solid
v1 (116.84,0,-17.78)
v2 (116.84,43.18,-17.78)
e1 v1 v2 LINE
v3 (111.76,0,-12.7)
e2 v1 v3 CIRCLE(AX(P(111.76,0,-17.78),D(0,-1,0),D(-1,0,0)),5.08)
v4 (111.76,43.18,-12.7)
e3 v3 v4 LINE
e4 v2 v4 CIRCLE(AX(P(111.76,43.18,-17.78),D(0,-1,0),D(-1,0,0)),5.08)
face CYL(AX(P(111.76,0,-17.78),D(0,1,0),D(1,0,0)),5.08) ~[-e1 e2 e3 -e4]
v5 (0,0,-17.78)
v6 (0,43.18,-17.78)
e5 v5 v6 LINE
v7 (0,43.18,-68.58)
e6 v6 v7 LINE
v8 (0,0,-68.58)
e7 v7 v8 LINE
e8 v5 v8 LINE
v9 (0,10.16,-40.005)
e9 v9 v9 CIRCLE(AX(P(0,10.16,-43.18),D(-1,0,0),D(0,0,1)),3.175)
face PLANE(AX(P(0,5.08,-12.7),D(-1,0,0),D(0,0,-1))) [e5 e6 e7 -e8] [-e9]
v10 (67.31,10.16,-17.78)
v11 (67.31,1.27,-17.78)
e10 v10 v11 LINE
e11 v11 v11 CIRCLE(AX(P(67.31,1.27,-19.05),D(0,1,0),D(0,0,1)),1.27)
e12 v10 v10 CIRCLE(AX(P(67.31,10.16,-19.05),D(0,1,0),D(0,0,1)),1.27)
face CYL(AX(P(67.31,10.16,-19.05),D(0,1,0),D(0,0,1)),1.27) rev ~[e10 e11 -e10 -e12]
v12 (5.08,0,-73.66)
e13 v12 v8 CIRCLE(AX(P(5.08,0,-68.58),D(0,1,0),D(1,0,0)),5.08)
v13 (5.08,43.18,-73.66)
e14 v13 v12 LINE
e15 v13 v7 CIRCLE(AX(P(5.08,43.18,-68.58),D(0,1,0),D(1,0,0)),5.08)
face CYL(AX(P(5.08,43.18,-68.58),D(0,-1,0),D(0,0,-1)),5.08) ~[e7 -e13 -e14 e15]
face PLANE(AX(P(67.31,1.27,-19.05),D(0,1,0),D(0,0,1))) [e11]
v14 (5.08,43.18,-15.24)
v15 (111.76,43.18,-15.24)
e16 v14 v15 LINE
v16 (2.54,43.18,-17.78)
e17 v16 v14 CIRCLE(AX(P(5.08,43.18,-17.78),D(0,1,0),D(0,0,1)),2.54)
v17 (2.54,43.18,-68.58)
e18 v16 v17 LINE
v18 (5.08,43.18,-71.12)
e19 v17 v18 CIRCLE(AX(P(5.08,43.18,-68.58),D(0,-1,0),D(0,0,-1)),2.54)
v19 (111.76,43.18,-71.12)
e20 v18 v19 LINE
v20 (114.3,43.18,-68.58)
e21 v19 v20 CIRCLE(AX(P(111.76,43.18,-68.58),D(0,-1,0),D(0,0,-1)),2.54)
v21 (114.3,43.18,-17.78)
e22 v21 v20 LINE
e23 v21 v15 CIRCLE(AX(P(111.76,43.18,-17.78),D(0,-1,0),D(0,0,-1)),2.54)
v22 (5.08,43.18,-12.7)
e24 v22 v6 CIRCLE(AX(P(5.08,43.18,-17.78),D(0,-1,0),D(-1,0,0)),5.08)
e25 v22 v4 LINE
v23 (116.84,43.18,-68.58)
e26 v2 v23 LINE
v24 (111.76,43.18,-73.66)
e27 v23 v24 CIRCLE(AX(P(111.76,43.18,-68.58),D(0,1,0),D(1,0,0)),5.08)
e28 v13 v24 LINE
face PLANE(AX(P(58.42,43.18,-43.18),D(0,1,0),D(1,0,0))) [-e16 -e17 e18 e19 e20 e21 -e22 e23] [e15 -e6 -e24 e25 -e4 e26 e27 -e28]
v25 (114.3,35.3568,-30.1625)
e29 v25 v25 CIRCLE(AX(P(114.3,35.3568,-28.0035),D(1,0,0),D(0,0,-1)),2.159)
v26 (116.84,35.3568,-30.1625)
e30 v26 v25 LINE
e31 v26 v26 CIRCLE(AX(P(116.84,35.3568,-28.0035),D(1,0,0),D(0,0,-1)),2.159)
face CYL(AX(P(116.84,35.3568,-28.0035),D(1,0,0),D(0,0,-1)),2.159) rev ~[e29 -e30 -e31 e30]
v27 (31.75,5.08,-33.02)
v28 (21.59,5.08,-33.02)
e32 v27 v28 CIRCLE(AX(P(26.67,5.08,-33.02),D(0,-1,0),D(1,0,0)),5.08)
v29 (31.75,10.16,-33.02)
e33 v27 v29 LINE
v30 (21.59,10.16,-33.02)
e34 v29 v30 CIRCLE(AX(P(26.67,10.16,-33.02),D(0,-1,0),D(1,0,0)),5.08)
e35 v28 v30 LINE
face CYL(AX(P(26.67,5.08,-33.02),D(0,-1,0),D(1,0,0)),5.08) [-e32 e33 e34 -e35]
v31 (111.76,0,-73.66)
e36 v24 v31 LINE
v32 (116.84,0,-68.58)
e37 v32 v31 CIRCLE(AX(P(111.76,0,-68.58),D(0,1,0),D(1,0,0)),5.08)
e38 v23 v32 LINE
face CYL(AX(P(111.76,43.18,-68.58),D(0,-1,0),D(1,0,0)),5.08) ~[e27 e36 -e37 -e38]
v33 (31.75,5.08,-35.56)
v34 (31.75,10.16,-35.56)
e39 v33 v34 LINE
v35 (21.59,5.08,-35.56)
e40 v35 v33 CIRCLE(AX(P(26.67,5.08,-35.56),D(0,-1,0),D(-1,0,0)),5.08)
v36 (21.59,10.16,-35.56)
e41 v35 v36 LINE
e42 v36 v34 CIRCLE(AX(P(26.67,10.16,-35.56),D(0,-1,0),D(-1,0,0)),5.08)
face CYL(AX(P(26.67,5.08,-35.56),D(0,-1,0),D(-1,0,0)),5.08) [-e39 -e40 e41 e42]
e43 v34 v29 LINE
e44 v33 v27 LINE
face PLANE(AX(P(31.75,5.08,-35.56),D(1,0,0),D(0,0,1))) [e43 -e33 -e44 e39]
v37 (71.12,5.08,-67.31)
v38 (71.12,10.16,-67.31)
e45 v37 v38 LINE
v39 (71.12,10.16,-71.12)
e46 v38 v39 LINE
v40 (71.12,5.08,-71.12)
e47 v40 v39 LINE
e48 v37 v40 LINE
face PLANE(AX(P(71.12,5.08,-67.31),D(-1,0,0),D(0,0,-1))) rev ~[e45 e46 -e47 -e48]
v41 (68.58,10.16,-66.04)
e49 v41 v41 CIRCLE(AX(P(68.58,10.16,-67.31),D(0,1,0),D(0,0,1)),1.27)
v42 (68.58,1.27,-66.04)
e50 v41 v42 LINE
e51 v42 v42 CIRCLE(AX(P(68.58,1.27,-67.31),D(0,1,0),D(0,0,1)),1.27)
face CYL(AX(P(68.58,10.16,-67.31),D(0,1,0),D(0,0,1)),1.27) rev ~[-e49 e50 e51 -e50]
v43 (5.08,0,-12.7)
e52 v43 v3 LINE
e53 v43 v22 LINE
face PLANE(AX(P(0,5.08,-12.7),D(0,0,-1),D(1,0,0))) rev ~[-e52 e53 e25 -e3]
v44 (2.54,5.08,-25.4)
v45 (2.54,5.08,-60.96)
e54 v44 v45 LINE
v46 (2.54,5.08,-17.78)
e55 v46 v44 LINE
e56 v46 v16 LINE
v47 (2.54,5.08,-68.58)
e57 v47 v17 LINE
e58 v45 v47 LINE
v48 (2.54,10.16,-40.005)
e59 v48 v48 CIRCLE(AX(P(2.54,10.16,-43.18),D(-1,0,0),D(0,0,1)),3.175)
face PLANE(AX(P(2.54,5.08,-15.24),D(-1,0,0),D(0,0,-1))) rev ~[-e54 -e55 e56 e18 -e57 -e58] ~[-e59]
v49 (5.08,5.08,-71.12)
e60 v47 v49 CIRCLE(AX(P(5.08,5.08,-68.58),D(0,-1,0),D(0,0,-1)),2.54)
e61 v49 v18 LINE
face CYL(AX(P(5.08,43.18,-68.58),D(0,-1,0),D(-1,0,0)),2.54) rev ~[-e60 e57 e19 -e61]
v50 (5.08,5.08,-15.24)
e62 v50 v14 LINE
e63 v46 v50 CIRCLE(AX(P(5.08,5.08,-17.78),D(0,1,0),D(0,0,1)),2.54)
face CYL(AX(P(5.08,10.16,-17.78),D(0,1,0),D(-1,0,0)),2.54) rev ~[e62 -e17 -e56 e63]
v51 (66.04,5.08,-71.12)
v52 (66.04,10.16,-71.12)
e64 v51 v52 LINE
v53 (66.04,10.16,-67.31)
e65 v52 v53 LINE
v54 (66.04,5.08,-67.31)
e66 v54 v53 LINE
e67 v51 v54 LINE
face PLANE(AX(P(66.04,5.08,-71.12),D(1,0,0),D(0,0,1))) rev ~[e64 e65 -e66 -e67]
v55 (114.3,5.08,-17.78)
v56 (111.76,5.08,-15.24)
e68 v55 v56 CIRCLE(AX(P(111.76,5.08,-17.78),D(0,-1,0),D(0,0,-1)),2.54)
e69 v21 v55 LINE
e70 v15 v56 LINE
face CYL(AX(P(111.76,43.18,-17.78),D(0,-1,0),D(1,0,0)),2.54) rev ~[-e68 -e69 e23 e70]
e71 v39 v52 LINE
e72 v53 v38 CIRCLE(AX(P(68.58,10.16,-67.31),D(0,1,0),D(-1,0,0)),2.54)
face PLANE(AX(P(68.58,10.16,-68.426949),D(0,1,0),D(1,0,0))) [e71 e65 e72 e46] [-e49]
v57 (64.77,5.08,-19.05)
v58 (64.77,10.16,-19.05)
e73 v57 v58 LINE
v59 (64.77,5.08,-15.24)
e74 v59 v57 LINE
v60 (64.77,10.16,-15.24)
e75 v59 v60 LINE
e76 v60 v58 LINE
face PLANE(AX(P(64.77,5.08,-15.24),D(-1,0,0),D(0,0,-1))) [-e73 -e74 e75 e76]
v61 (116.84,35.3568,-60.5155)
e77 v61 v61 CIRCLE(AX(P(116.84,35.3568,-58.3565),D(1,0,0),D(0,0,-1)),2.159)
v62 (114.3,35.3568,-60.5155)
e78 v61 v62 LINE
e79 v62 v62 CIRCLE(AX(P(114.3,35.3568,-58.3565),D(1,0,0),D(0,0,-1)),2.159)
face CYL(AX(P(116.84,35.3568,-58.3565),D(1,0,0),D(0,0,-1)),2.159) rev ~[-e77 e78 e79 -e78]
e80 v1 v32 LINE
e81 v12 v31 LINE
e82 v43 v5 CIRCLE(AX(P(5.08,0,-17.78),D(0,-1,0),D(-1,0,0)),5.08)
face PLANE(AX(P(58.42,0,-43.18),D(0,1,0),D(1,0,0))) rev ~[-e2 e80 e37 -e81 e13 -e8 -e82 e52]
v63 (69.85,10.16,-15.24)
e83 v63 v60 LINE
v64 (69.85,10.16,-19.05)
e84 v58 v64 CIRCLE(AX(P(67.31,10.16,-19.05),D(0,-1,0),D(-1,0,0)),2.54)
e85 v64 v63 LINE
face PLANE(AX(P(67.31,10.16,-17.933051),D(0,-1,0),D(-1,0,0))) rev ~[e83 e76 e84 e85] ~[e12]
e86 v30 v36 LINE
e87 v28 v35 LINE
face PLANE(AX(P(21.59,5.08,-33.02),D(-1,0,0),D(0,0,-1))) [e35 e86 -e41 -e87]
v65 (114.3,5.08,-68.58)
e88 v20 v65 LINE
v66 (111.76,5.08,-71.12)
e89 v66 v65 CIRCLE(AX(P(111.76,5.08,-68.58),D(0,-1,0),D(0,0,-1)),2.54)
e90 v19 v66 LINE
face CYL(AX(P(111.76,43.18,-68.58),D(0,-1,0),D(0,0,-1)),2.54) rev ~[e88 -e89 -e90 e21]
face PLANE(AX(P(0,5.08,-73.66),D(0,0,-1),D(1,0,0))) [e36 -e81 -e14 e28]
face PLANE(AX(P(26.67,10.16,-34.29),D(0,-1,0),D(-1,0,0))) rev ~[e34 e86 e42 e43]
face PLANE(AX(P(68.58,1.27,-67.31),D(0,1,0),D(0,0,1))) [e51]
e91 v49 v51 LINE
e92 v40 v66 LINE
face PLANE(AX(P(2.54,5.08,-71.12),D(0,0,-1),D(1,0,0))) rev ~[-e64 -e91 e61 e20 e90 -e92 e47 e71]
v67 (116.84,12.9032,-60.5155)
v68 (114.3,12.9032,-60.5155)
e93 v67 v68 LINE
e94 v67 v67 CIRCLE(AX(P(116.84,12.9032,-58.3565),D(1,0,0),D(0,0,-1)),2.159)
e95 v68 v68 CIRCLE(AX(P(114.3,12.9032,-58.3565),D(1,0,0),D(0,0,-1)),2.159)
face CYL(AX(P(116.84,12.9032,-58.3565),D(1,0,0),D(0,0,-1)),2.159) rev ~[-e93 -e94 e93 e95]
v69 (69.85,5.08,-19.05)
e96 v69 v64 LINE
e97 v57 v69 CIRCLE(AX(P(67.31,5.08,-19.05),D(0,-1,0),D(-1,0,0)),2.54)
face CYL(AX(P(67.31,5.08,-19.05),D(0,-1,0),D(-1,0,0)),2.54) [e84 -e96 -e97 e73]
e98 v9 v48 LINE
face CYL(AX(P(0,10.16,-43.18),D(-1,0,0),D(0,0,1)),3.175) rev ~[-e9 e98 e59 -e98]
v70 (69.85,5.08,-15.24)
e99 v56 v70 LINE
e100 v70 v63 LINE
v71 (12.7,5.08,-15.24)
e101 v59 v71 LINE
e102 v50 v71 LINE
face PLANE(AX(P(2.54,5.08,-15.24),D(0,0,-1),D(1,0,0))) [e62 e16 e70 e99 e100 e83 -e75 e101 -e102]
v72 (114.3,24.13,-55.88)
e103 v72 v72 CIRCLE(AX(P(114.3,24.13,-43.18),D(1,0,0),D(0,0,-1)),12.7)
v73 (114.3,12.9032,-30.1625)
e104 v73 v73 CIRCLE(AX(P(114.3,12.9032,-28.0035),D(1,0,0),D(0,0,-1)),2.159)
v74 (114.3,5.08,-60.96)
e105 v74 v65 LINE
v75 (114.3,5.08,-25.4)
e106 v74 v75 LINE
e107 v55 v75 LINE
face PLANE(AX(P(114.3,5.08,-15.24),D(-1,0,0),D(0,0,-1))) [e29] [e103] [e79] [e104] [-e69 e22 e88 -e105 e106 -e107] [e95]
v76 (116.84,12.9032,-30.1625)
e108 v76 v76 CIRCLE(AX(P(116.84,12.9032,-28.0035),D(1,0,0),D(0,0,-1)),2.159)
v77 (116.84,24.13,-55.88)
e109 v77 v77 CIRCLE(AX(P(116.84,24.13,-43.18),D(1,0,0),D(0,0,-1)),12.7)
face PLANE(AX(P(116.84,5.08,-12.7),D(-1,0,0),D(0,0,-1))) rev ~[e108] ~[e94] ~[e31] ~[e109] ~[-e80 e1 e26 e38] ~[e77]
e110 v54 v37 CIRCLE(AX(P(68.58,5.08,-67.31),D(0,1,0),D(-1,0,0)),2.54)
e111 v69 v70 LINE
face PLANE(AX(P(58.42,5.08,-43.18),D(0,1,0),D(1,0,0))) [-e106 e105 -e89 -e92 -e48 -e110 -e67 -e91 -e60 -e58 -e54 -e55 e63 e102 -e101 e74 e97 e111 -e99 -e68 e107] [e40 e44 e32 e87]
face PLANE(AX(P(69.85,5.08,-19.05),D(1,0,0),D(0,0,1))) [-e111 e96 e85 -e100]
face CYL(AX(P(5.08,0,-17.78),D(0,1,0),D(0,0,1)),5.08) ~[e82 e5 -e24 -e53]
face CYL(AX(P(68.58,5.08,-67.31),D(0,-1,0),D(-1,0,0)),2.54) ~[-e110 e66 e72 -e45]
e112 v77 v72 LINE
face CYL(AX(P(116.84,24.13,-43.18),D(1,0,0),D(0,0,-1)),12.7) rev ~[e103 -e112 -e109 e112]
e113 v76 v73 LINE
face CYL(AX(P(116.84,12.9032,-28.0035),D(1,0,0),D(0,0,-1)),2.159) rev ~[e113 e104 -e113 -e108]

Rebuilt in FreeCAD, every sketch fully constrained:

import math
import FreeCAD as App
import Part
import Sketcher
Q = App.Units.Quantity


def edges_at(feature, points):
    """Names of the edges that pass closest to the given points."""
    edges = feature.Shape.Edges
    near = lambda p: min(range(len(edges)), key=lambda i: edges[i].distToShape(Part.Vertex(*p))[0])
    return sorted({f"Edge{near(p) + 1}" for p in points})


def add_polygon(sketch, points):
    """Adds a closed chain of lines whose ends are joined by coincident constraints."""
    first, n = sketch.GeometryCount, len(points)
    for a, b in zip(points, points[1:] + points[:1]):
        sketch.addGeometry(Part.LineSegment(App.Vector(*a, 0), App.Vector(*b, 0)), False)
    for i in range(n):
        sketch.addConstraint(Sketcher.Constraint("Coincident", first + i, 2, first + (i + 1) % n, 1))

doc = App.newDocument("Part")
body = doc.addObject("PartDesign::Body", "Body")

# Sketch on XZ plane
sketch1 = doc.addObject("Sketcher::SketchObject", "Sketch")
body.addObject(sketch1)
sketch1.AttachmentSupport = (doc.XZ_Plane, [""])
sketch1.MapMode = "FlatFace"
add_polygon(sketch1, [(0, -86), (0, 0), (117, 0), (117, -86)])  # lines 0-3
sketch1.addConstraint([
    Sketcher.Constraint("Vertical", 0),
    Sketcher.Constraint("Horizontal", 1),
    Sketcher.Constraint("Vertical", 2),
    Sketcher.Constraint("Horizontal", 3),
    Sketcher.Constraint("Coincident", 0, 2, -1, 1),
    Sketcher.Constraint("DistanceX", 1, 1, 1, 2, Q("4.6 in")),
    Sketcher.Constraint("DistanceY", 0, 1, 0, 2, Q("3.4 in")),
])
pad1 = doc.addObject("PartDesign::Pad", "Pad")
body.addObject(pad1)
pad1.Profile = sketch1
pad1.Length = Q("0.2 in")
pad1.Reversed = True
doc.recompute()

fillet = doc.addObject("PartDesign::Fillet", "Fillet")
body.addObject(fillet)
fillet.Base = (pad1, edges_at(pad1, [
    (0, 2.54, -86.36),
    (116.84, 2.54, -86.36),
    (116.84, 2.54, 0),
    (0, 2.54, 0),
]))
fillet.Radius = Q("0.5 in")

# Sketch on XZ plane
sketch2 = doc.addObject("Sketcher::SketchObject", "Sketch001")
body.addObject(sketch2)
sketch2.AttachmentSupport = (doc.XZ_Plane, [""])
sketch2.MapMode = "FlatFace"
sketch2.AttachmentOffset = App.Placement(App.Vector(0, 0, -0.2 * 25.4), App.Rotation())
add_polygon(sketch2, [(0, -74), (0, -13), (117, -13), (117, -74)])  # lines 0-3
add_polygon(sketch2, [(114, -15), (3, -15), (3, -71), (114, -71)])  # lines 4-7
sketch2.addConstraint([
    Sketcher.Constraint("Vertical", 0),
    Sketcher.Constraint("Horizontal", 1),
    Sketcher.Constraint("Vertical", 2),
    Sketcher.Constraint("Horizontal", 3),
    Sketcher.Constraint("Horizontal", 4),
    Sketcher.Constraint("Vertical", 5),
    Sketcher.Constraint("Horizontal", 6),
    Sketcher.Constraint("Vertical", 7),
    Sketcher.Constraint("PointOnObject", 0, 2, -2),
    Sketcher.Constraint("DistanceX", 1, 1, 1, 2, Q("4.6 in")),
    Sketcher.Constraint("DistanceX", 4, 2, 4, 1, Q("4.4 in")),
    Sketcher.Constraint("DistanceY", 0, 1, 0, 2, Q("2.4 in")),
    Sketcher.Constraint("DistanceY", 5, 2, 5, 1, Q("2.2 in")),
    Sketcher.Constraint("DistanceY", 0, 2, -1, 1, Q("0.5 in")),
    Sketcher.Constraint("DistanceX", -1, 1, 4, 2, Q("0.1 in")),
    Sketcher.Constraint("DistanceY", 4, 2, -1, 1, Q("0.6 in")),
])
pad2 = doc.addObject("PartDesign::Pad", "Pad001")
body.addObject(pad2)
pad2.Profile = sketch2
pad2.Length = Q("1.5 in")
pad2.Reversed = True

# Sketch on XZ plane
sketch3 = doc.addObject("Sketcher::SketchObject", "Sketch002")
body.addObject(sketch3)
sketch3.AttachmentSupport = (doc.XZ_Plane, [""])
sketch3.MapMode = "FlatFace"
sketch3.AttachmentOffset = App.Placement(App.Vector(0, 0, -0.2 * 25.4), App.Rotation())
add_polygon(sketch3, [(3, -71), (3, -61), (13, -61), (13, -71)])  # lines 0-3
add_polygon(sketch3, [(104, -71), (104, -61), (114, -61), (114, -71)])  # lines 4-7
add_polygon(sketch3, [(104, -25), (104, -15), (114, -15), (114, -25)])  # lines 8-11
add_polygon(sketch3, [(3, -25), (3, -15), (13, -15), (13, -25)])  # lines 12-15
sketch3.addConstraint([
    Sketcher.Constraint("Vertical", 0),
    Sketcher.Constraint("Horizontal", 1),
    Sketcher.Constraint("Vertical", 2),
    Sketcher.Constraint("Horizontal", 3),
    Sketcher.Constraint("Vertical", 4),
    Sketcher.Constraint("Horizontal", 5),
    Sketcher.Constraint("Vertical", 6),
    Sketcher.Constraint("Horizontal", 7),
    Sketcher.Constraint("Vertical", 8),
    Sketcher.Constraint("Horizontal", 9),
    Sketcher.Constraint("Vertical", 10),
    Sketcher.Constraint("Horizontal", 11),
    Sketcher.Constraint("Vertical", 12),
    Sketcher.Constraint("Horizontal", 13),
    Sketcher.Constraint("Vertical", 14),
    Sketcher.Constraint("Horizontal", 15),
    Sketcher.Constraint("Horizontal", 1, 2, 4, 2),
    Sketcher.Constraint("Horizontal", 3, 2, 6, 2),
    Sketcher.Constraint("Horizontal", 9, 2, 12, 2),
    Sketcher.Constraint("Horizontal", 11, 2, 14, 2),
    Sketcher.Constraint("Vertical", 7, 2, 8, 2),
    Sketcher.Constraint("Vertical", 6, 2, 9, 2),
    Sketcher.Constraint("Vertical", 3, 2, 12, 2),
    Sketcher.Constraint("Vertical", 2, 2, 13, 2),
    Sketcher.Constraint("Equal", 3, 5),
    Sketcher.Constraint("Equal", 15, 0),
    Sketcher.Constraint("Equal", 6, 8),
    Sketcher.Constraint("DistanceX", 1, 1, 1, 2, Q("0.4 in")),
    Sketcher.Constraint("DistanceY", 10, 2, -1, 1, Q("1 in")),
    Sketcher.Constraint("DistanceX", 0, 2, 4, 2, Q("4 in")),
    Sketcher.Constraint("DistanceX", -1, 1, 0, 2, Q("0.1 in")),
    Sketcher.Constraint("DistanceY", 0, 2, -1, 1, Q("2.4 in")),
])
pad3 = doc.addObject("PartDesign::Pad", "Pad002")
body.addObject(pad3)
pad3.Profile = sketch3
pad3.Length = Q("1.35 in")
pad3.Reversed = True
doc.recompute()

fillet2 = doc.addObject("PartDesign::Fillet", "Fillet001")
body.addObject(fillet2)
fillet2.Base = (pad3, edges_at(pad3, [
    (12.7, 22.225, -25.4),
    (12.7, 22.225, -60.96),
    (104.14, 22.225, -60.96),
    (104.14, 22.225, -25.4),
]))
fillet2.Radius = Q("0.2 in")

# Sketch on XZ plane
sketch4 = doc.addObject("Sketcher::SketchObject", "Sketch003")
body.addObject(sketch4)
sketch4.AttachmentSupport = (doc.XZ_Plane, [""])
sketch4.MapMode = "FlatFace"
sketch4.AttachmentOffset = App.Placement(App.Vector(0, 0, -1.55 * 25.4), App.Rotation())
sketch4.addGeometry([
    Part.Circle(App.Vector(7.6, -66, 0), App.Vector(0, 0, 1), 1.3),
    Part.Circle(App.Vector(109.2, -66, 0), App.Vector(0, 0, 1), 1.3),
    Part.Circle(App.Vector(109.2, -20.3, 0), App.Vector(0, 0, 1), 1.3),
    Part.Circle(App.Vector(7.6, -20.3, 0), App.Vector(0, 0, 1), 1.3),
], False)
sketch4.addConstraint([
    Sketcher.Constraint("Equal", 0, 1),
    Sketcher.Constraint("Equal", 1, 2),
    Sketcher.Constraint("Equal", 2, 3),
    Sketcher.Constraint("Horizontal", 0, 3, 1, 3),
    Sketcher.Constraint("Horizontal", 2, 3, 3, 3),
    Sketcher.Constraint("Vertical", 1, 3, 2, 3),
    Sketcher.Constraint("Vertical", 0, 3, 3, 3),
    Sketcher.Constraint("Diameter", 0, Q("0.1 in")),
    Sketcher.Constraint("DistanceX", 0, 3, 1, 3, Q("4 in")),
    Sketcher.Constraint("DistanceX", -1, 1, 0, 3, Q("0.3 in")),
    Sketcher.Constraint("DistanceY", 0, 3, -1, 1, Q("2.6 in")),
    Sketcher.Constraint("DistanceY", 2, 3, -1, 1, Q("0.8 in")),
])
pocket1 = doc.addObject("PartDesign::Pocket", "Pocket")
body.addObject(pocket1)
pocket1.Profile = sketch4
pocket1.Length = Q("1.35 in")
pocket1.Reversed = True

# Sketch on XZ plane
sketch5 = doc.addObject("Sketcher::SketchObject", "Sketch004")
body.addObject(sketch5)
sketch5.AttachmentSupport = (doc.XZ_Plane, [""])
sketch5.MapMode = "FlatFace"
add_polygon(sketch5, [(-32, -120), (-32, 30), (167, 30), (167, -120)])  # lines 0-3
add_polygon(sketch5, [(117, -13), (0, -13), (0, -74), (117, -74)])  # lines 4-7
sketch5.addConstraint([
    Sketcher.Constraint("Vertical", 0),
    Sketcher.Constraint("Horizontal", 1),
    Sketcher.Constraint("Vertical", 2),
    Sketcher.Constraint("Horizontal", 3),
    Sketcher.Constraint("Horizontal", 4),
    Sketcher.Constraint("Vertical", 5),
    Sketcher.Constraint("Horizontal", 6),
    Sketcher.Constraint("Vertical", 7),
    Sketcher.Constraint("PointOnObject", 4, 2, -2),
    Sketcher.Constraint("DistanceX", 4, 2, 4, 1, Q("4.6 in")),
    Sketcher.Constraint("DistanceY", 5, 2, 5, 1, Q("2.4 in")),
    Sketcher.Constraint("DistanceY", 4, 2, -1, 1, Q("0.5 in")),
    Sketcher.Constraint("DistanceX", 1, 1, 1, 2, 198.457474),
    Sketcher.Constraint("DistanceY", 0, 1, 0, 2, 149.814535),
    Sketcher.Constraint("DistanceX", -1, 1, 1, 2, 166.832319),
    Sketcher.Constraint("DistanceY", 2, 2, -1, 1, 119.526909),
])
pocket2 = doc.addObject("PartDesign::Pocket", "Pocket001")
body.addObject(pocket2)
pocket2.Profile = sketch5
pocket2.Length = Q("0.2 in")
doc.recompute()

fillet3 = doc.addObject("PartDesign::Fillet", "Fillet002")
body.addObject(fillet3)
fillet3.Base = (pocket2, edges_at(pocket2, [
    (0, 21.59, -12.7),
    (0, 21.59, -73.66),
    (116.84, 21.59, -12.7),
    (116.84, 21.59, -73.66),
]))
fillet3.Radius = Q("0.2 in")

# Sketch on YZ plane
sketch6 = doc.addObject("Sketcher::SketchObject", "Sketch005")
body.addObject(sketch6)
sketch6.AttachmentSupport = (doc.YZ_Plane, [""])
sketch6.MapMode = "FlatFace"
sketch6.AttachmentOffset = App.Placement(App.Vector(0, 0, 4.6 * 25.4), App.Rotation())
sketch6.addGeometry(Part.Circle(App.Vector(24, -43, 0), App.Vector(0, 0, 1), 13), False)
sketch6.addConstraint([
    Sketcher.Constraint("Diameter", 0, Q("1 in")),
    Sketcher.Constraint("DistanceY", 0, 3, -1, 1, Q("1.7 in")),
    Sketcher.Constraint("DistanceX", -1, 1, 0, 3, Q("0.95 in")),
])
pocket3 = doc.addObject("PartDesign::Pocket", "Pocket002")
body.addObject(pocket3)
pocket3.Profile = sketch6
pocket3.Type = "UpToFirst"

# Sketch on YZ plane
sketch7 = doc.addObject("Sketcher::SketchObject", "Sketch006")
body.addObject(sketch7)
sketch7.AttachmentSupport = (doc.YZ_Plane, [""])
sketch7.MapMode = "FlatFace"
sketch7.AttachmentOffset = App.Placement(App.Vector(0, 0, 4.6 * 25.4), App.Rotation())
sketch7.addGeometry(Part.Circle(App.Vector(35.4, -28, 0), App.Vector(0, 0, 1), 2.2), False)
sketch7.addConstraint([
    Sketcher.Constraint("Diameter", 0, Q("0.17 in")),
    Sketcher.Constraint("DistanceX", -1, 1, 0, 3, Q("1.392 in")),
    Sketcher.Constraint("DistanceY", 0, 3, -1, 1, Q("1.1025 in")),
])
pocket4 = doc.addObject("PartDesign::Pocket", "Pocket003")
body.addObject(pocket4)
pocket4.Profile = sketch7
pocket4.Type = "UpToFirst"

# Sketch on YZ plane
sketch8 = doc.addObject("Sketcher::SketchObject", "Sketch007")
body.addObject(sketch8)
sketch8.AttachmentSupport = (doc.YZ_Plane, [""])
sketch8.MapMode = "FlatFace"
sketch8.AttachmentOffset = App.Placement(App.Vector(0, 0, 4.6 * 25.4), App.Rotation())
sketch8.addGeometry(Part.Circle(App.Vector(35.4, -58.4, 0), App.Vector(0, 0, 1), 2.2), False)
sketch8.addConstraint([
    Sketcher.Constraint("Diameter", 0, Q("0.17 in")),
    Sketcher.Constraint("DistanceX", -1, 1, 0, 3, Q("1.392 in")),
    Sketcher.Constraint("DistanceY", 0, 3, -1, 1, Q("2.2975 in")),
])
pocket5 = doc.addObject("PartDesign::Pocket", "Pocket004")
body.addObject(pocket5)
pocket5.Profile = sketch8
pocket5.Type = "UpToFirst"

# Sketch on YZ plane
sketch9 = doc.addObject("Sketcher::SketchObject", "Sketch008")
body.addObject(sketch9)
sketch9.AttachmentSupport = (doc.YZ_Plane, [""])
sketch9.MapMode = "FlatFace"
sketch9.AttachmentOffset = App.Placement(App.Vector(0, 0, 4.6 * 25.4), App.Rotation())
sketch9.addGeometry(Part.Circle(App.Vector(12.9, -28, 0), App.Vector(0, 0, 1), 2.2), False)
sketch9.addConstraint([
    Sketcher.Constraint("Diameter", 0, Q("0.17 in")),
    Sketcher.Constraint("DistanceX", -1, 1, 0, 3, Q("0.508 in")),
    Sketcher.Constraint("DistanceY", 0, 3, -1, 1, Q("1.1025 in")),
])
pocket6 = doc.addObject("PartDesign::Pocket", "Pocket005")
body.addObject(pocket6)
pocket6.Profile = sketch9
pocket6.Type = "UpToFirst"

# Sketch on YZ plane
sketch10 = doc.addObject("Sketcher::SketchObject", "Sketch009")
body.addObject(sketch10)
sketch10.AttachmentSupport = (doc.YZ_Plane, [""])
sketch10.MapMode = "FlatFace"
sketch10.AttachmentOffset = App.Placement(App.Vector(0, 0, 4.6 * 25.4), App.Rotation())
sketch10.addGeometry(Part.Circle(App.Vector(12.9, -58.4, 0), App.Vector(0, 0, 1), 2.2), False)
sketch10.addConstraint([
    Sketcher.Constraint("Diameter", 0, Q("0.17 in")),
    Sketcher.Constraint("DistanceX", -1, 1, 0, 3, Q("0.508 in")),
    Sketcher.Constraint("DistanceY", 0, 3, -1, 1, Q("2.2975 in")),
])
pocket7 = doc.addObject("PartDesign::Pocket", "Pocket006")
body.addObject(pocket7)
pocket7.Profile = sketch10
pocket7.Type = "UpToFirst"

# Sketch on YZ plane
sketch11 = doc.addObject("Sketcher::SketchObject", "Sketch010")
body.addObject(sketch11)
sketch11.AttachmentSupport = (doc.YZ_Plane, [""])
sketch11.MapMode = "FlatFace"
sketch11.addGeometry(Part.Circle(App.Vector(10.2, -43.2, 0), App.Vector(0, 0, 1), 3.2), False)
sketch11.addConstraint([
    Sketcher.Constraint("Diameter", 0, Q("0.25 in")),
    Sketcher.Constraint("DistanceX", -1, 1, 0, 3, Q("0.4 in")),
    Sketcher.Constraint("DistanceY", 0, 3, -1, 1, Q("1.7 in")),
])
pocket8 = doc.addObject("PartDesign::Pocket", "Pocket007")
body.addObject(pocket8)
pocket8.Profile = sketch11
pocket8.Type = "UpToFirst"
pocket8.Reversed = True

# Sketch on XZ plane
sketch12 = doc.addObject("Sketcher::SketchObject", "Sketch011")
body.addObject(sketch12)
sketch12.AttachmentSupport = (doc.XZ_Plane, [""])
sketch12.MapMode = "FlatFace"
sketch12.AttachmentOffset = App.Placement(App.Vector(0, 0, -0.2 * 25.4), App.Rotation())
sketch12.addGeometry([
    Part.LineSegment(App.Vector(69.8, -15.2, 0), App.Vector(69.8, -19.1, 0)),  # 0
    Part.ArcOfCircle(Part.Circle(App.Vector(67.3, -19.1, 0), App.Vector(0, 0, 1), 2.5), math.radians(180), math.radians(360)),  # 1
    Part.LineSegment(App.Vector(64.8, -19.1, 0), App.Vector(64.8, -15.2, 0)),  # 2
    Part.LineSegment(App.Vector(64.8, -15.2, 0), App.Vector(69.8, -15.2, 0)),  # 3
    Part.LineSegment(App.Vector(71.1, -67.3, 0), App.Vector(71.1, -71.1, 0)),  # 4
    Part.LineSegment(App.Vector(71.1, -71.1, 0), App.Vector(66, -71.1, 0)),  # 5
    Part.LineSegment(App.Vector(66, -71.1, 0), App.Vector(66, -67.3, 0)),  # 6
    Part.ArcOfCircle(Part.Circle(App.Vector(68.6, -67.3, 0), App.Vector(0, 0, 1), 2.5), math.radians(0), math.radians(180)),  # 7
], False)
sketch12.addConstraint([
    Sketcher.Constraint("Tangent", 0, 2, 1, 2),
    Sketcher.Constraint("Tangent", 1, 1, 2, 1),
    Sketcher.Constraint("Coincident", 2, 2, 3, 1),
    Sketcher.Constraint("Coincident", 3, 2, 0, 1),
    Sketcher.Constraint("Coincident", 4, 2, 5, 1),
    Sketcher.Constraint("Coincident", 5, 2, 6, 1),
    Sketcher.Constraint("Tangent", 6, 2, 7, 2),
    Sketcher.Constraint("Tangent", 7, 1, 4, 1),
    Sketcher.Constraint("Vertical", 0),
    Sketcher.Constraint("Vertical", 2),
    Sketcher.Constraint("Horizontal", 3),
    Sketcher.Constraint("Vertical", 4),
    Sketcher.Constraint("Horizontal", 5),
    Sketcher.Constraint("Vertical", 6),
    Sketcher.Constraint("Equal", 1, 7),
    Sketcher.Constraint("Equal", 2, 4),
    Sketcher.Constraint("Radius", 1, Q("0.1 in")),
    Sketcher.Constraint("DistanceY", 0, 2, 0, 1, Q("0.15 in")),
    Sketcher.Constraint("DistanceX", -1, 1, 7, 3, Q("2.7 in")),
    Sketcher.Constraint("DistanceY", 2, 2, -1, 1, Q("0.6 in")),
    Sketcher.Constraint("DistanceY", 4, 2, -1, 1, Q("2.8 in")),
    Sketcher.Constraint("DistanceX", -1, 1, 1, 3, Q("2.65 in")),
])
pad4 = doc.addObject("PartDesign::Pad", "Pad003")
body.addObject(pad4)
pad4.Profile = sketch12
pad4.Length = Q("0.2 in")
pad4.Reversed = True

# Sketch on XZ plane
sketch13 = doc.addObject("Sketcher::SketchObject", "Sketch012")
body.addObject(sketch13)
sketch13.AttachmentSupport = (doc.XZ_Plane, [""])
sketch13.MapMode = "FlatFace"
sketch13.AttachmentOffset = App.Placement(App.Vector(0, 0, -0.4 * 25.4), App.Rotation())
sketch13.addGeometry([
    Part.Circle(App.Vector(67.3, -19.1, 0), App.Vector(0, 0, 1), 1.3),
    Part.Circle(App.Vector(68.6, -67.3, 0), App.Vector(0, 0, 1), 1.3),
], False)
sketch13.addConstraint([
    Sketcher.Constraint("Equal", 0, 1),
    Sketcher.Constraint("Diameter", 0, Q("0.1 in")),
    Sketcher.Constraint("DistanceX", -1, 1, 1, 3, Q("2.7 in")),
    Sketcher.Constraint("DistanceY", 1, 3, 0, 3, Q("1.9 in")),
    Sketcher.Constraint("DistanceX", -1, 1, 0, 3, Q("2.65 in")),
    Sketcher.Constraint("DistanceY", 0, 3, -1, 1, Q("0.75 in")),
])
pocket9 = doc.addObject("PartDesign::Pocket", "Pocket008")
body.addObject(pocket9)
pocket9.Profile = sketch13
pocket9.Length = Q("0.35 in")
pocket9.Reversed = True

# Sketch on XZ plane
sketch14 = doc.addObject("Sketcher::SketchObject", "Sketch013")
body.addObject(sketch14)
sketch14.AttachmentSupport = (doc.XZ_Plane, [""])
sketch14.MapMode = "FlatFace"
sketch14.AttachmentOffset = App.Placement(App.Vector(0, 0, -1.55 * 25.4), App.Rotation())
add_polygon(sketch14, [(3, -71), (3, -15), (114, -15), (114, -71)])  # lines 0-3
sketch14.addConstraint([
    Sketcher.Constraint("Vertical", 0),
    Sketcher.Constraint("Horizontal", 1),
    Sketcher.Constraint("Vertical", 2),
    Sketcher.Constraint("Horizontal", 3),
    Sketcher.Constraint("DistanceX", 1, 1, 1, 2, Q("4.4 in")),
    Sketcher.Constraint("DistanceY", 0, 1, 0, 2, Q("2.2 in")),
    Sketcher.Constraint("DistanceX", -1, 1, 0, 2, Q("0.1 in")),
    Sketcher.Constraint("DistanceY", 0, 2, -1, 1, Q("0.6 in")),
])
pocket10 = doc.addObject("PartDesign::Pocket", "Pocket009")
body.addObject(pocket10)
pocket10.Profile = sketch14
pocket10.Length = Q("1.15 in")
pocket10.Reversed = True

# Sketch on XZ plane
sketch15 = doc.addObject("Sketcher::SketchObject", "Sketch014")
body.addObject(sketch15)
sketch15.AttachmentSupport = (doc.XZ_Plane, [""])
sketch15.MapMode = "FlatFace"
sketch15.AttachmentOffset = App.Placement(App.Vector(0, 0, -0.4 * 25.4), App.Rotation())
add_polygon(sketch15, [(93, -28), (93, -15), (114, -15), (114, -28)])  # lines 0-3
add_polygon(sketch15, [(99, -71), (99, -57), (114, -57), (114, -71)])  # lines 4-7
add_polygon(sketch15, [(3, -29), (3, -15), (19, -15), (19, -29)])  # lines 8-11
add_polygon(sketch15, [(3, -71), (3, -57), (15, -57), (15, -71)])  # lines 12-15
sketch15.addConstraint([
    Sketcher.Constraint("Vertical", 0),
    Sketcher.Constraint("Horizontal", 1),
    Sketcher.Constraint("Vertical", 2),
    Sketcher.Constraint("Horizontal", 3),
    Sketcher.Constraint("Vertical", 4),
    Sketcher.Constraint("Horizontal", 5),
    Sketcher.Constraint("Vertical", 6),
    Sketcher.Constraint("Horizontal", 7),
    Sketcher.Constraint("Vertical", 8),
    Sketcher.Constraint("Horizontal", 9),
    Sketcher.Constraint("Vertical", 10),
    Sketcher.Constraint("Horizontal", 11),
    Sketcher.Constraint("Vertical", 12),
    Sketcher.Constraint("Horizontal", 13),
    Sketcher.Constraint("Vertical", 14),
    Sketcher.Constraint("Horizontal", 15),
    Sketcher.Constraint("Horizontal", 1, 2, 8, 2),
    Sketcher.Constraint("Horizontal", 5, 2, 12, 2),
    Sketcher.Constraint("Horizontal", 7, 2, 14, 2),
    Sketcher.Constraint("Vertical", 2, 2, 5, 2),
    Sketcher.Constraint("Vertical", 11, 2, 12, 2),
    Sketcher.Constraint("DistanceY", 0, 2, -1, 1, Q("0.6 in")),
    Sketcher.Constraint("DistanceX", -1, 1, 1, 2, Q("4.5 in")),
    Sketcher.Constraint("DistanceY", 6, 2, -1, 1, Q("2.8 in")),
    Sketcher.Constraint("DistanceX", -1, 1, 8, 2, Q("0.1 in")),
    Sketcher.Constraint("DistanceX", 1, 1, 1, 2, 20.924478),
    Sketcher.Constraint("DistanceX", 5, 1, 5, 2, 15.618153),
    Sketcher.Constraint("DistanceX", 9, 1, 9, 2, 16.110335),
    Sketcher.Constraint("DistanceX", 13, 1, 13, 2, 12.045495),
    Sketcher.Constraint("DistanceY", 0, 1, 0, 2, 12.476012),
    Sketcher.Constraint("DistanceY", 4, 1, 4, 2, 14.190034),
    Sketcher.Constraint("DistanceY", 8, 1, 8, 2, 13.876034),
])
pocket11 = doc.addObject("PartDesign::Pocket", "Pocket010")
body.addObject(pocket11)
pocket11.Profile = sketch15
pocket11.Length = Q("0.2 in")
pocket11.Reversed = True
doc.recompute()

fillet4 = doc.addObject("PartDesign::Fillet", "Fillet003")
body.addObject(fillet4)
fillet4.Base = (pocket11, edges_at(pocket11, [
    (2.54, 26.67, -15.24),
    (114.3, 26.67, -15.24),
    (114.3, 26.67, -71.12),
    (2.54, 26.67, -71.12),
]))
fillet4.Radius = Q("0.1 in")

# Sketch on XZ plane
sketch16 = doc.addObject("Sketcher::SketchObject", "Sketch015")
body.addObject(sketch16)
sketch16.AttachmentSupport = (doc.XZ_Plane, [""])
sketch16.MapMode = "FlatFace"
sketch16.AttachmentOffset = App.Placement(App.Vector(0, 0, -0.2 * 25.4), App.Rotation())
sketch16.addGeometry([
    Part.LineSegment(App.Vector(21.6, -35.6, 0), App.Vector(21.6, -33, 0)),
    Part.ArcOfCircle(Part.Circle(App.Vector(26.7, -33, 0), App.Vector(0, 0, 1), 5.1), math.radians(0), math.radians(180)),
    Part.LineSegment(App.Vector(31.8, -33, 0), App.Vector(31.8, -35.6, 0)),
    Part.ArcOfCircle(Part.Circle(App.Vector(26.7, -35.6, 0), App.Vector(0, 0, 1), 5.1), math.radians(180), math.radians(360)),
], False)
sketch16.addConstraint([
    Sketcher.Constraint("Tangent", 0, 2, 1, 2),
    Sketcher.Constraint("Tangent", 1, 1, 2, 1),
    Sketcher.Constraint("Tangent", 2, 2, 3, 2),
    Sketcher.Constraint("Tangent", 3, 1, 0, 1),
    Sketcher.Constraint("Vertical", 0),
    Sketcher.Constraint("Vertical", 2),
    Sketcher.Constraint("Radius", 1, Q("0.2 in")),
    Sketcher.Constraint("DistanceY", 0, 1, 0, 2, Q("0.1 in")),
    Sketcher.Constraint("DistanceY", 1, 3, -1, 1, Q("1.3 in")),
    Sketcher.Constraint("DistanceX", -1, 1, 1, 3, Q("1.05 in")),
])
pad5 = doc.addObject("PartDesign::Pad", "Pad004")
body.addObject(pad5)
pad5.Profile = sketch16
pad5.Length = Q("0.2 in")
pad5.Reversed = True

doc.recompute()
